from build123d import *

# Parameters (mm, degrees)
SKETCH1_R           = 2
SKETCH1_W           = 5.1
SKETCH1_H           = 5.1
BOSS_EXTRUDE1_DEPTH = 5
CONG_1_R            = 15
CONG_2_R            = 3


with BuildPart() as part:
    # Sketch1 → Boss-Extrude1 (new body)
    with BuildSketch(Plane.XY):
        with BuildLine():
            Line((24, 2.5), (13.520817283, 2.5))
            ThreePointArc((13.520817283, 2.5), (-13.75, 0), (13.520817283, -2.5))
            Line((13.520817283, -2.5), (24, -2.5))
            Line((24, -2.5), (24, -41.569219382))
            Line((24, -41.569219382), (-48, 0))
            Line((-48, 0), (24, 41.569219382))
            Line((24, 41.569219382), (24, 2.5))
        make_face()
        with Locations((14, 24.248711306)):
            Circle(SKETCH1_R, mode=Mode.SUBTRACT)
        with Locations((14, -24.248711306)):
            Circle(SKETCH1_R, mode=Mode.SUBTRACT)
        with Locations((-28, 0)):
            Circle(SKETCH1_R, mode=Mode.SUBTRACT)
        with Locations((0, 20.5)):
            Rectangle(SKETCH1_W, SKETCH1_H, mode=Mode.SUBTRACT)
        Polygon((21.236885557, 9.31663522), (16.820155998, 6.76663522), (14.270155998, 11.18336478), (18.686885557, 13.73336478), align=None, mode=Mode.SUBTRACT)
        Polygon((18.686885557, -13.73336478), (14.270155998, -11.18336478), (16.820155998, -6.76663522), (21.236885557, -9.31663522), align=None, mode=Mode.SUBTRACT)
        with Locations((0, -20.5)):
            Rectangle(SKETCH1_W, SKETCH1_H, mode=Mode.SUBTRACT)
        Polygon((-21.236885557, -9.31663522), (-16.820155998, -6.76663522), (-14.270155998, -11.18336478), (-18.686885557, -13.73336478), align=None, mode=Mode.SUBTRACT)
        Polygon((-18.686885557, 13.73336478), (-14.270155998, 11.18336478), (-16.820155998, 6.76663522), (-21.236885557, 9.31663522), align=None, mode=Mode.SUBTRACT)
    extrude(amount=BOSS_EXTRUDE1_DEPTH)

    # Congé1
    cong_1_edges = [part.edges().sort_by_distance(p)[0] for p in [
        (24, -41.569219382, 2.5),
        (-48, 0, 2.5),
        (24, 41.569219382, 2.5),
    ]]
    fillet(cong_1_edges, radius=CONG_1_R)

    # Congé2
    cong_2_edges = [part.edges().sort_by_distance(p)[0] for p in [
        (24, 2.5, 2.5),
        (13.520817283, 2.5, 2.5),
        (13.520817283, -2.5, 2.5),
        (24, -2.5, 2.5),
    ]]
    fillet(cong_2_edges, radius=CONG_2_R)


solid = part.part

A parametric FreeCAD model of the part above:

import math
import FreeCAD as App
import Part
import Sketcher
Q = App.Units.Quantity


def edges_at(feature, points):
    """Names of the edges that pass closest to the given points."""
    edges = feature.Shape.Edges
    near = lambda p: min(range(len(edges)), key=lambda i: edges[i].distToShape(Part.Vertex(*p))[0])
    return sorted({f"Edge{near(p) + 1}" for p in points})


def add_polygon(sketch, points):
    """Adds a closed chain of lines whose ends are joined by coincident constraints."""
    first, n = sketch.GeometryCount, len(points)
    for a, b in zip(points, points[1:] + points[:1]):
        sketch.addGeometry(Part.LineSegment(App.Vector(*a, 0), App.Vector(*b, 0)), False)
    for i in range(n):
        sketch.addConstraint(Sketcher.Constraint("Coincident", first + i, 2, first + (i + 1) % n, 1))

doc = App.newDocument("Part")
body = doc.addObject("PartDesign::Body", "Body")

# Sketch on XY plane
sketch1 = body.newObject("Sketcher::SketchObject", "Sketch")
sketch1.AttachmentSupport = (doc.getObject("XY_Plane"), [""])
sketch1.MapMode = "FlatFace"
sketch1.addGeometry(Part.LineSegment(App.Vector(13.520817, 2.5, 0), App.Vector(24, 2.5, 0)), False)  # 0
sketch1.addGeometry(Part.LineSegment(App.Vector(24, 2.5, 0), App.Vector(24, 41.569219, 0)), False)  # 1
sketch1.addGeometry(Part.LineSegment(App.Vector(24, 41.569219, 0), App.Vector(-48, 0, 0)), False)  # 2
sketch1.addGeometry(Part.LineSegment(App.Vector(-48, 0, 0), App.Vector(24, -41.569219, 0)), False)  # 3
sketch1.addGeometry(Part.LineSegment(App.Vector(24, -41.569219, 0), App.Vector(24, -2.5, 0)), False)  # 4
sketch1.addGeometry(Part.LineSegment(App.Vector(24, -2.5, 0), App.Vector(13.520817, -2.5, 0)), False)  # 5
sketch1.addGeometry(Part.ArcOfCircle(Part.Circle(App.Vector(0, 0, 0), App.Vector(0, 0, 1), 13.75), math.radians(10.475682), math.radians(349.524318)), False)  # 6
sketch1.addGeometry(Part.Circle(App.Vector(14, -24.248711, 0), App.Vector(0, 0, 1), 2), False)  # 7
add_polygon(sketch1, [(-2.55, -23.05), (-2.55, -17.95), (2.55, -17.95), (2.55, -23.05)])  # lines 8-11
add_polygon(sketch1, [(18.686886, -13.733365), (14.270156, -11.183365), (16.820156, -6.766635), (21.236886, -9.316635)])  # lines 12-15
add_polygon(sketch1, [(-21.236886, -9.316635), (-16.820156, -6.766635), (-14.270156, -11.183365), (-18.686886, -13.733365)])  # lines 16-19
add_polygon(sketch1, [(21.236886, 9.316635), (16.820156, 6.766635), (14.270156, 11.183365), (18.686886, 13.733365)])  # lines 20-23
sketch1.addGeometry(Part.Circle(App.Vector(14, 24.248711, 0), App.Vector(0, 0, 1), 2), False)  # 24
add_polygon(sketch1, [(-2.55, 17.95), (-2.55, 23.05), (2.55, 23.05), (2.55, 17.95)])  # lines 25-28
sketch1.addGeometry(Part.Circle(App.Vector(-28, 0, 0), App.Vector(0, 0, 1), 2), False)  # 29
add_polygon(sketch1, [(-18.686886, 13.733365), (-14.270156, 11.183365), (-16.820156, 6.766635), (-21.236886, 9.316635)])  # lines 30-33
sketch1.addConstraint([
    Sketcher.Constraint("Coincident", 0, 2, 1, 1),
    Sketcher.Constraint("Coincident", 1, 2, 2, 1),
    Sketcher.Constraint("Coincident", 2, 2, 3, 1),
    Sketcher.Constraint("Coincident", 3, 2, 4, 1),
    Sketcher.Constraint("Coincident", 4, 2, 5, 1),
    Sketcher.Constraint("Coincident", 5, 2, 6, 2),
    Sketcher.Constraint("Coincident", 6, 1, 0, 1),
    Sketcher.Constraint("Horizontal", 0),
    Sketcher.Constraint("Vertical", 1),
    Sketcher.Constraint("Vertical", 4),
    Sketcher.Constraint("Horizontal", 5),
    Sketcher.Constraint("Vertical", 8),
    Sketcher.Constraint("Horizontal", 9),
    Sketcher.Constraint("Vertical", 10),
    Sketcher.Constraint("Horizontal", 11),
    Sketcher.Constraint("Vertical", 25),
    Sketcher.Constraint("Horizontal", 26),
    Sketcher.Constraint("Vertical", 27),
    Sketcher.Constraint("Horizontal", 28),
    Sketcher.Constraint("Coincident", 6, 3, -1, 1),
    Sketcher.Constraint("Equal", 7, 24),
    Sketcher.Constraint("Equal", 24, 29),
    Sketcher.Constraint("Symmetric", 16, 2, 20, 2, -1, 1),
    Sketcher.Constraint("Symmetric", 17, 2, 21, 2, -1, 1),
    Sketcher.Constraint("Symmetric", 18, 2, 22, 2, -1, 1),
    Sketcher.Constraint("Symmetric", 19, 2, 23, 2, -1, 1),
    Sketcher.Constraint("Symmetric", 10, 2, 25, 2, -1, 1),
    Sketcher.Constraint("Symmetric", 8, 2, 27, 2, -1, 1),
    Sketcher.Constraint("Symmetric", 12, 2, 30, 2, -1, 1),
    Sketcher.Constraint("Symmetric", 13, 2, 31, 2, -1, 1),
    Sketcher.Constraint("Symmetric", 14, 2, 32, 2, -1, 1),
    Sketcher.Constraint("Symmetric", 15, 2, 33, 2, -1, 1),
    Sketcher.Constraint("Symmetric", 13, 2, 16, 2, -2),
    Sketcher.Constraint("Symmetric", 12, 2, 17, 2, -2),
    Sketcher.Constraint("Symmetric", 15, 2, 18, 2, -2),
    Sketcher.Constraint("Symmetric", 14, 2, 19, 2, -2),
    Sketcher.Constraint("Symmetric", 7, 3, 24, 3, -1),
    Sketcher.Constraint("Symmetric", 1, 2, 3, 2, -1),
    Sketcher.Constraint("PointOnObject", 29, 3, -1),
    Sketcher.Constraint("PointOnObject", 2, 2, -1),
    Sketcher.Constraint("Parallel", 3, 12),
    Sketcher.Constraint("Perpendicular", 12, 13),
    Sketcher.Constraint("Perpendicular", 13, 14),
    Sketcher.Constraint("Perpendicular", 14, 15),
    Sketcher.Constraint("Vertical", 5, 2, 6, 1),
    Sketcher.Constraint("Vertical", 11, 2, 25, 2),
    Sketcher.Constraint("Equal", 28, 8),
    Sketcher.Constraint("Equal", 12, 13),
    Sketcher.Constraint("Diameter", 7, 4.0),
    Sketcher.Constraint("Angle", 2, Q("-150 deg")),
    Sketcher.Constraint("Radius", 6, 13.75),
    Sketcher.Constraint("DistanceX", 9, 1, 9, 2, 5.1),
    Sketcher.Constraint("DistanceX", -1, 1, 7, 3, 14.0),
    Sketcher.Constraint("DistanceX", 29, 3, -1, 1, 28.0),
    Sketcher.Constraint("DistanceX", -1, 1, 0, 2, 24.0),
    Sketcher.Constraint("DistanceX", 2, 2, -1, 1, 48.0),
    Sketcher.Constraint("DistanceY", 4, 2, 0, 2, 5.0),
    Sketcher.Constraint("Distance", 12, 5.1),
    Sketcher.Constraint("DistanceY", 8, 2, -1, 1, 17.95),
    Sketcher.Constraint("DistanceY", 16, 2, 30, 2, 17.95),
    Sketcher.Constraint("DistanceY", 7, 3, -1, 1, 24.248711),
    Sketcher.Constraint("DistanceX", 5, 2, 12, 2, 0.749339),
])
pad1 = body.newObject("PartDesign::Pad", "Pad")
pad1.Profile = sketch1
pad1.Length = 5
doc.recompute()

fillet = body.newObject("PartDesign::Fillet", "Fillet")
fillet.Base = (pad1, edges_at(pad1, [(24, -41.569, 2.5), (-48, 0, 2.5), (24, 41.569, 2.5)]))
fillet.Radius = 15
doc.recompute()

fillet2 = body.newObject("PartDesign::Fillet", "Fillet001")
fillet2.Base = (fillet, edges_at(fillet, [
    (24, 2.5, 2.5),
    (13.521, 2.5, 2.5),
    (13.521, -2.5, 2.5),
    (24, -2.5, 2.5),
]))
fillet2.Radius = 3

doc.recompute()
